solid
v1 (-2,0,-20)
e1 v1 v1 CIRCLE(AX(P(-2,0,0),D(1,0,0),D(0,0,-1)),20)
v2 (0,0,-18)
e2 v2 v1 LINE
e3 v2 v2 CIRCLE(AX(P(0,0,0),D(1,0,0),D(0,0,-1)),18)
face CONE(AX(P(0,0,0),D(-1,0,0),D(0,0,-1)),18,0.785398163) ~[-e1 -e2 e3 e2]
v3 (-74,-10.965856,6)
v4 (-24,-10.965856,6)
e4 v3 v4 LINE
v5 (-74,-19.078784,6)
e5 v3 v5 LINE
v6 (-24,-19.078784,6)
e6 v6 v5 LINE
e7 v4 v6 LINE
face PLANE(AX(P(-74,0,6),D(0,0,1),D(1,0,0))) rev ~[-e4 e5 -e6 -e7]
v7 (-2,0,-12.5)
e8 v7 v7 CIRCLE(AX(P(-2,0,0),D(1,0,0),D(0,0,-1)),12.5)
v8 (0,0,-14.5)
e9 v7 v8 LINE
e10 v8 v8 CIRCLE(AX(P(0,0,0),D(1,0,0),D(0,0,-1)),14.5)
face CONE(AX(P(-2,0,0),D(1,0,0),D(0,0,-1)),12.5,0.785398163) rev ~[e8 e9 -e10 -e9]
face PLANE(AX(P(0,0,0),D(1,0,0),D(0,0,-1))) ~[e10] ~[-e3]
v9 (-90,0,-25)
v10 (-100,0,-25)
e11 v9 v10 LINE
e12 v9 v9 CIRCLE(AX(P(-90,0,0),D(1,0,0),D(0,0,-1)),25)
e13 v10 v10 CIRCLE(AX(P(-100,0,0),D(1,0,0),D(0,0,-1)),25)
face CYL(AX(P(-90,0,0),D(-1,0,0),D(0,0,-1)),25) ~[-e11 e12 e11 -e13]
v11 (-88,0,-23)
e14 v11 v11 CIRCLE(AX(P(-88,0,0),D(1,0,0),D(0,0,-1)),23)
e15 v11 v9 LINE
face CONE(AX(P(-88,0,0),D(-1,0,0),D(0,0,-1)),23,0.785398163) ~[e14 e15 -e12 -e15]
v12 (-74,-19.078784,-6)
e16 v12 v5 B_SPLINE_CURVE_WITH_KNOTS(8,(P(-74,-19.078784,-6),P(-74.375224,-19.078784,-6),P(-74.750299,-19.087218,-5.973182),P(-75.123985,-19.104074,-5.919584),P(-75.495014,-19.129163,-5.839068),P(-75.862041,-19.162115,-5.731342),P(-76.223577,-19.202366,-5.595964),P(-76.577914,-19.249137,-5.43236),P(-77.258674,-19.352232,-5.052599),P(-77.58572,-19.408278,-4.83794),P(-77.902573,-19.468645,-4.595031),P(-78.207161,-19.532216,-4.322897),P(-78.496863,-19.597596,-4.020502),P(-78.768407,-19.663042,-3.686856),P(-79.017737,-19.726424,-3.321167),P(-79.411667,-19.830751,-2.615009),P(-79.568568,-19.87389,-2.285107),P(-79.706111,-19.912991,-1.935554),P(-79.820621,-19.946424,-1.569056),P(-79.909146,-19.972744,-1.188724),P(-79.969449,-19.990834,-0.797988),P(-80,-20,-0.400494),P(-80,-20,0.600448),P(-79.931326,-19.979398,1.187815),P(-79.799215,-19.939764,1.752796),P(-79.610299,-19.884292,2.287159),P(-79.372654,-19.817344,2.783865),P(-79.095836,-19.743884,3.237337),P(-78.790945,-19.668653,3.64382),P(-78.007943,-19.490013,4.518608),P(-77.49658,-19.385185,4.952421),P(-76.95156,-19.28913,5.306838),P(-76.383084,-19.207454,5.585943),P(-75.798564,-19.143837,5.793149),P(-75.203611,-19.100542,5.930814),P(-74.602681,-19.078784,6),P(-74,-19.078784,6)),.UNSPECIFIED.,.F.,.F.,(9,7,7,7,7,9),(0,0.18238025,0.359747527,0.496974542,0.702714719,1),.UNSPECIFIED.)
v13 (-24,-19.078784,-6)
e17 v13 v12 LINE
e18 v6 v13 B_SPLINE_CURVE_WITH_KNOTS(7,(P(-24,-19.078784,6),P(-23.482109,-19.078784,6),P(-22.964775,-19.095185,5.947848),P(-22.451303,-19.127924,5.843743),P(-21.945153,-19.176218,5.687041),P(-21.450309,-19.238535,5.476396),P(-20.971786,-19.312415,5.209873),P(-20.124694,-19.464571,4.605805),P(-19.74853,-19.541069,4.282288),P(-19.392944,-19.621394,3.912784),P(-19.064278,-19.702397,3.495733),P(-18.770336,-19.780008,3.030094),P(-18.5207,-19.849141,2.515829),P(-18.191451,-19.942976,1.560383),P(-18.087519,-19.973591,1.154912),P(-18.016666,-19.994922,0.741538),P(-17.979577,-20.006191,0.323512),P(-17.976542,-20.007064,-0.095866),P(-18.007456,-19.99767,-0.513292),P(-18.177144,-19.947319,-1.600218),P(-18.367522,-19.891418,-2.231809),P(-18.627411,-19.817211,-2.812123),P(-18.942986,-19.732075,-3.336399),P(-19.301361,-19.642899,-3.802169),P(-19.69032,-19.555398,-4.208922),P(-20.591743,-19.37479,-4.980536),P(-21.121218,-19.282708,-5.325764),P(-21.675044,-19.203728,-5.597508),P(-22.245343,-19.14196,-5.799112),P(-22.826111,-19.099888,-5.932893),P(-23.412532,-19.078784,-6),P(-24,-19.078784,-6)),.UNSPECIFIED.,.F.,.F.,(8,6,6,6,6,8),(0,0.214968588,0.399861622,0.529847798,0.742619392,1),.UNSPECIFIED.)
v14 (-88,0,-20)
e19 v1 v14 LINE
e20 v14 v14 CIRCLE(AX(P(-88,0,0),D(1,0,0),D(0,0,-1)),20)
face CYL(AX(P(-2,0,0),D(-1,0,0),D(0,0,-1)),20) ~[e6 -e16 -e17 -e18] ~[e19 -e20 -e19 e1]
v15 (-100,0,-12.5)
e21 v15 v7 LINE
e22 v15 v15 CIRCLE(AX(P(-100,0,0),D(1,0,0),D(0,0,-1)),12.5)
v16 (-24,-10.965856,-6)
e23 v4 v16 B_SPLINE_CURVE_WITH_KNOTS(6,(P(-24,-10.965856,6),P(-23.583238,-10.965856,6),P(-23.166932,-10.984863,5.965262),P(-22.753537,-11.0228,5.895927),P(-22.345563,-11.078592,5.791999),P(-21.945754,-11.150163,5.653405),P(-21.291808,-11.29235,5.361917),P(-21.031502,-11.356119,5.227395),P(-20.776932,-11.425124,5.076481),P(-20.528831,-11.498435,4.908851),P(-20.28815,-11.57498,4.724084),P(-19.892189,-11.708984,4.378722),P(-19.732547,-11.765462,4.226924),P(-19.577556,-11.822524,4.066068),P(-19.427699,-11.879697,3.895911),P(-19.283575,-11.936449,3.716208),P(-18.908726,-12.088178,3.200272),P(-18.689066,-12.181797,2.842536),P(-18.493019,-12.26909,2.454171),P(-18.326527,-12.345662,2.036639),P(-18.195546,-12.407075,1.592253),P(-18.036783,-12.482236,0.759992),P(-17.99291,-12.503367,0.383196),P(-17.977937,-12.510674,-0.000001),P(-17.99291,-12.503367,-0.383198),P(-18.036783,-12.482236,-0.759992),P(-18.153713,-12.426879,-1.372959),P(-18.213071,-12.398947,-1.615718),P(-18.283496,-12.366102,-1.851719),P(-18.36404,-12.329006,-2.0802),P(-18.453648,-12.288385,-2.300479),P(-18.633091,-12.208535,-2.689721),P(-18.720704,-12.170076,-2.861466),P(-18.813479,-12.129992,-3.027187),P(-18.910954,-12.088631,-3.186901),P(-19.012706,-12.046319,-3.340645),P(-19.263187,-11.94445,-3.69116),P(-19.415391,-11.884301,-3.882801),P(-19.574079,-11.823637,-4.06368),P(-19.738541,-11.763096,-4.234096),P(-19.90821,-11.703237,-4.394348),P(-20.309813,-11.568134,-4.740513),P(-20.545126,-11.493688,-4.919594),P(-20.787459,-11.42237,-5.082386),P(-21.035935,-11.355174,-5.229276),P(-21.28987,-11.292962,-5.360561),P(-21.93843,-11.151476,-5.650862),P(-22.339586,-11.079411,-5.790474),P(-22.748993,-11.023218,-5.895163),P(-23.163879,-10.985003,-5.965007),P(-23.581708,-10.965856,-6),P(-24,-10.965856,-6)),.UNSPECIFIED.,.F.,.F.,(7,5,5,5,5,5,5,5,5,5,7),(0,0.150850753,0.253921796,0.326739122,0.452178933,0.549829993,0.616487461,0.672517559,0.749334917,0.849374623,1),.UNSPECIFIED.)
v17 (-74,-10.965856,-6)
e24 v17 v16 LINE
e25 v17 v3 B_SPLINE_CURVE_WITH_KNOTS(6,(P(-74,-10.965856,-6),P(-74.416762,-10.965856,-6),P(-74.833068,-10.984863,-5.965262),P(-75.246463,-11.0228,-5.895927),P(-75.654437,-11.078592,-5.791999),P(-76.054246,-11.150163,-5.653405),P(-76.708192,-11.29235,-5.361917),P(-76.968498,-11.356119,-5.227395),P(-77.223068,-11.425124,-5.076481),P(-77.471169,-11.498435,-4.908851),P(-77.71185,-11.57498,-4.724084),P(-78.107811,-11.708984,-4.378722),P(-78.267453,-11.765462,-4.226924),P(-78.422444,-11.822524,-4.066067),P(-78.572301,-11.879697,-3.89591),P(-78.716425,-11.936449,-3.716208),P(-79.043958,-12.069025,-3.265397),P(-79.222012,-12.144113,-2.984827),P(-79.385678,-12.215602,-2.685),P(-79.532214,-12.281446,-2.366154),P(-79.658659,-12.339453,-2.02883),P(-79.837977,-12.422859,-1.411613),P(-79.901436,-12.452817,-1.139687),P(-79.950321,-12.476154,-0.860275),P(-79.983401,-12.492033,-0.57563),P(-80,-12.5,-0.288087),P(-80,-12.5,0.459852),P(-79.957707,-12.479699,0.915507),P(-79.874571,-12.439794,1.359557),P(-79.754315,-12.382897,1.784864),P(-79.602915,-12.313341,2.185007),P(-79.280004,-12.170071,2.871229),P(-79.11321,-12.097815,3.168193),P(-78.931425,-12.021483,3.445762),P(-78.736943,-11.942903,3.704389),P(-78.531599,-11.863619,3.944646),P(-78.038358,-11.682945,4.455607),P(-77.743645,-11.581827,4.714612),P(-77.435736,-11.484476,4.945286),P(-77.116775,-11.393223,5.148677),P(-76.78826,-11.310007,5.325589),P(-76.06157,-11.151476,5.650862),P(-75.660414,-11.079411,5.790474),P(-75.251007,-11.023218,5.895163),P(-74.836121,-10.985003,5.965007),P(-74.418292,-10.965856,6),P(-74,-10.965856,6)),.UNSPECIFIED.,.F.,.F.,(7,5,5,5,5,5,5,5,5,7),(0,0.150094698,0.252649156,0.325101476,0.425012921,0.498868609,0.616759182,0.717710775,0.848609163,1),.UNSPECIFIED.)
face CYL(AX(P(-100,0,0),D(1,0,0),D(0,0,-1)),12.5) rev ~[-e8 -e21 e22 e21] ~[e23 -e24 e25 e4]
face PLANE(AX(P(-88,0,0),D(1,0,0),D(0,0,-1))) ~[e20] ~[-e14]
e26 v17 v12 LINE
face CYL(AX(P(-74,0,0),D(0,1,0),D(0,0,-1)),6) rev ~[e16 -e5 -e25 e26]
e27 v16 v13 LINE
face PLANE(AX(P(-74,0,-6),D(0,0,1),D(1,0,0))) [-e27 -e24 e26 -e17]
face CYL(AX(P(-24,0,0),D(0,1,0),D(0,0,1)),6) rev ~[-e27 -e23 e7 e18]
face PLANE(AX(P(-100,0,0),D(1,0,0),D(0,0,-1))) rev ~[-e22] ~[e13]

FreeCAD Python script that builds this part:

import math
import FreeCAD as App
import Part
import Sketcher

V = App.Vector

doc = App.newDocument("Part")
body = doc.addObject("PartDesign::Body", "Body")

sketch1 = body.newObject("Sketcher::SketchObject", "Sketch")
sketch1.AttachmentSupport = (doc.getObject("XZ_Plane"), [""])
sketch1.MapMode = "FlatFace"
sketch1.addGeometry(Part.LineSegment(V(-100, -25, 0), V(-100, -12.5, 0)), False)
sketch1.addGeometry(Part.LineSegment(V(-100, -12.5, 0), V(-2, -12.5, 0)), False)
sketch1.addGeometry(Part.LineSegment(V(-2, -12.5, 0), V(0, -14.5, 0)), False)
sketch1.addGeometry(Part.LineSegment(V(0, -14.5, 0), V(0, -18, 0)), False)
sketch1.addGeometry(Part.LineSegment(V(0, -18, 0), V(-2, -20, 0)), False)
sketch1.addGeometry(Part.LineSegment(V(-2, -20, 0), V(-88, -20, 0)), False)
sketch1.addGeometry(Part.LineSegment(V(-88, -20, 0), V(-88, -23, 0)), False)
sketch1.addGeometry(Part.LineSegment(V(-88, -23, 0), V(-90, -25, 0)), False)
sketch1.addGeometry(Part.LineSegment(V(-90, -25, 0), V(-100, -25, 0)), False)
sketch1.addConstraint(Sketcher.Constraint("Coincident", 0, 2, 1, 1))
sketch1.addConstraint(Sketcher.Constraint("Coincident", 1, 2, 2, 1))
sketch1.addConstraint(Sketcher.Constraint("Coincident", 2, 2, 3, 1))
sketch1.addConstraint(Sketcher.Constraint("Coincident", 3, 2, 4, 1))
sketch1.addConstraint(Sketcher.Constraint("Coincident", 4, 2, 5, 1))
sketch1.addConstraint(Sketcher.Constraint("Coincident", 5, 2, 6, 1))
sketch1.addConstraint(Sketcher.Constraint("Coincident", 6, 2, 7, 1))
sketch1.addConstraint(Sketcher.Constraint("Coincident", 7, 2, 8, 1))
sketch1.addConstraint(Sketcher.Constraint("Coincident", 8, 2, 0, 1))
sketch1.addConstraint(Sketcher.Constraint("Vertical", 0))
sketch1.addConstraint(Sketcher.Constraint("Horizontal", 1))
sketch1.addConstraint(Sketcher.Constraint("Vertical", 3))
sketch1.addConstraint(Sketcher.Constraint("Horizontal", 5))
sketch1.addConstraint(Sketcher.Constraint("Vertical", 6))
sketch1.addConstraint(Sketcher.Constraint("Horizontal", 8))
sketch1.addConstraint(Sketcher.Constraint("PointOnObject", 2, 2, -2))
sketch1.addConstraint(Sketcher.Constraint("Perpendicular", 2, 4))
sketch1.addConstraint(Sketcher.Constraint("Parallel", 4, 7))
sketch1.addConstraint(Sketcher.Constraint("Vertical", 1, 2, 4, 2))
sketch1.addConstraint(Sketcher.Constraint("Equal", 2, 4))
sketch1.addConstraint(Sketcher.Constraint("Equal", 4, 7))
sketch1.addConstraint(Sketcher.Constraint("DistanceX", 0, 2, -1, 1, 100.0))
sketch1.addConstraint(Sketcher.Constraint("DistanceX", 1, 2, -1, 1, 2.0))
sketch1.addConstraint(Sketcher.Constraint("DistanceY", 4, 2, -1, 1, 20.0))
sketch1.addConstraint(Sketcher.Constraint("DistanceX", 5, 2, -1, 1, 88.0))
sketch1.addConstraint(Sketcher.Constraint("DistanceY", 7, 2, -1, 1, 25.0))
sketch1.addConstraint(Sketcher.Constraint("DistanceY", 2, 2, -1, 1, 14.5))
revolution = body.newObject("PartDesign::Revolution", "Revolution")
revolution.Profile = sketch1
revolution.ReferenceAxis = (sketch1, ["H_Axis"])
revolution.Angle = 360

sketch2 = body.newObject("Sketcher::SketchObject", "Sketch001")
sketch2.AttachmentSupport = (doc.getObject("XZ_Plane"), [""])
sketch2.MapMode = "FlatFace"
sketch2.addGeometry(Part.ArcOfCircle(Part.Circle(V(-74, 0, 0), V(0, 0, 1), 6), math.radians(90), math.radians(270)), False)
sketch2.addGeometry(Part.LineSegment(V(-74, 6, 0), V(-24, 6, 0)), False)
sketch2.addGeometry(Part.ArcOfCircle(Part.Circle(V(-24, 0, 0), V(0, 0, 1), 6), math.radians(-90), math.radians(90)), False)
sketch2.addGeometry(Part.LineSegment(V(-24, -6, 0), V(-74, -6, 0)), False)
sketch2.addConstraint(Sketcher.Constraint("Tangent", 0, 1, 1, 1))
sketch2.addConstraint(Sketcher.Constraint("Tangent", 1, 2, 2, 2))
sketch2.addConstraint(Sketcher.Constraint("Tangent", 2, 1, 3, 1))
sketch2.addConstraint(Sketcher.Constraint("Tangent", 3, 2, 0, 2))
sketch2.addConstraint(Sketcher.Constraint("Horizontal", 1))
sketch2.addConstraint(Sketcher.Constraint("Horizontal", 3))
sketch2.addConstraint(Sketcher.Constraint("PointOnObject", 0, 3, -1))
sketch2.addConstraint(Sketcher.Constraint("Radius", 0, 6.0))
sketch2.addConstraint(Sketcher.Constraint("DistanceX", 0, 3, -1, 1, 74.0))
sketch2.addConstraint(Sketcher.Constraint("DistanceX", 2, 3, -1, 1, 24.0))
pocket1 = body.newObject("PartDesign::Pocket", "Pocket")
pocket1.Profile = sketch2
pocket1.Type = "ThroughAll"
pocket1.Reversed = True

doc.recompute()
